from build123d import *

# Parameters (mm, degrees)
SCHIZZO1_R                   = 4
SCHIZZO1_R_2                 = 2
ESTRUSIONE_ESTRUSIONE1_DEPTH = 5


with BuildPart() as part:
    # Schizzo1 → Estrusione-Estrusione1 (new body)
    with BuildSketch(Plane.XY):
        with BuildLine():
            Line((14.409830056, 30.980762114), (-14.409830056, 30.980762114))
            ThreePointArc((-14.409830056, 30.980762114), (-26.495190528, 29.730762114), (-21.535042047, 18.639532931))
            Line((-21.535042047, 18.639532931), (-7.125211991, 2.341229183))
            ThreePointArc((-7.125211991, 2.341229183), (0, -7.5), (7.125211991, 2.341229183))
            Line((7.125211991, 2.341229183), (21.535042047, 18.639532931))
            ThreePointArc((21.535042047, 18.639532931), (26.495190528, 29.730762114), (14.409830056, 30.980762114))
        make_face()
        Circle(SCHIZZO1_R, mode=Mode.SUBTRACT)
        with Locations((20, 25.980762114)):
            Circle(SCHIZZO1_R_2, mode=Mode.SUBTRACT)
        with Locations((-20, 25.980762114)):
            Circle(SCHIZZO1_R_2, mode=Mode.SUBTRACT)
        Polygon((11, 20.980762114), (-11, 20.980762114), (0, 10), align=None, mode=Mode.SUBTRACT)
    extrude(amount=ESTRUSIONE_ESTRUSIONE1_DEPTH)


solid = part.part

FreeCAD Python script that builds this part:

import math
import FreeCAD as App
import Part
import Sketcher

V = App.Vector


def add_polygon(sketch, points):
    """Adds a closed chain of lines whose ends are joined by coincident constraints."""
    first, n = sketch.GeometryCount, len(points)
    for a, b in zip(points, points[1:] + points[:1]):
        sketch.addGeometry(Part.LineSegment(App.Vector(*a, 0), App.Vector(*b, 0)), False)
    for i in range(n):
        sketch.addConstraint(Sketcher.Constraint("Coincident", first + i, 2, first + (i + 1) % n, 1))

doc = App.newDocument("Part")
body = doc.addObject("PartDesign::Body", "Body")

# Sketch on XY plane
sketch1 = body.newObject("Sketcher::SketchObject", "Sketch")
sketch1.AttachmentSupport = (doc.getObject("XY_Plane"), [""])
sketch1.MapMode = "FlatFace"
sketch1.addGeometry(Part.LineSegment(V(14.40983, 30.980762, 0), V(-14.40983, 30.980762, 0)), False)  # 0
sketch1.addGeometry(Part.ArcOfCircle(Part.Circle(V(-20, 25.980762, 0), V(0, 0, 1), 7.5), math.radians(41.810315), math.radians(258.189685)), False)  # 1
sketch1.addGeometry(Part.LineSegment(V(-21.535042, 18.639533, 0), V(-7.125212, 2.341229, 0)), False)  # 2
sketch1.addGeometry(Part.ArcOfCircle(Part.Circle(V(0, 0, 0), V(0, 0, 1), 7.5), math.radians(161.810315), math.radians(378.189685)), False)  # 3
sketch1.addGeometry(Part.LineSegment(V(7.125212, 2.341229, 0), V(21.535042, 18.639533, 0)), False)  # 4
sketch1.addGeometry(Part.ArcOfCircle(Part.Circle(V(20, 25.980762, 0), V(0, 0, 1), 7.5), math.radians(-78.189685), math.radians(138.189685)), False)  # 5
sketch1.addGeometry(Part.Circle(V(0, 0, 0), V(0, 0, 1), 4), False)  # 6
sketch1.addGeometry(Part.Circle(V(-20, 25.980762, 0), V(0, 0, 1), 2), False)  # 7
add_polygon(sketch1, [(-11, 20.980762), (11, 20.980762), (0, 10)])  # lines 8-10
sketch1.addGeometry(Part.Circle(V(20, 25.980762, 0), V(0, 0, 1), 2), False)  # 11
sketch1.addConstraint([
    Sketcher.Constraint("Coincident", 0, 2, 1, 1),
    Sketcher.Constraint("Coincident", 1, 2, 2, 1),
    Sketcher.Constraint("Coincident", 2, 2, 3, 1),
    Sketcher.Constraint("Coincident", 3, 2, 4, 1),
    Sketcher.Constraint("Coincident", 4, 2, 5, 1),
    Sketcher.Constraint("Coincident", 5, 2, 0, 1),
    Sketcher.Constraint("Horizontal", 0),
    Sketcher.Constraint("Horizontal", 8),
    Sketcher.Constraint("Coincident", 3, 3, -1, 1),
    Sketcher.Constraint("Coincident", 6, 3, -1, 1),
    Sketcher.Constraint("Coincident", 7, 3, 1, 3),
    Sketcher.Constraint("Coincident", 11, 3, 5, 3),
    Sketcher.Constraint("Equal", 1, 3),
    Sketcher.Constraint("Equal", 3, 5),
    Sketcher.Constraint("Equal", 7, 11),
    Sketcher.Constraint("Symmetric", 1, 3, 5, 3, -2),
    Sketcher.Constraint("PointOnObject", 9, 2, -2),
    Sketcher.Constraint("Horizontal", 2, 2, 3, 2),
    Sketcher.Constraint("Horizontal", 1, 2, 4, 2),
    Sketcher.Constraint("Equal", 9, 10),
    Sketcher.Constraint("Diameter", 6, 8.0),
    Sketcher.Constraint("Diameter", 7, 4.0),
    Sketcher.Constraint("Radius", 1, 7.5),
    Sketcher.Constraint("DistanceX", 8, 1, 8, 2, 22.0),
    Sketcher.Constraint("DistanceX", 1, 3, -1, 1, 20.0),
    Sketcher.Constraint("DistanceY", -1, 1, 9, 2, 10.0),
    Sketcher.Constraint("DistanceY", 1, 3, 0, 2, 5.0),
    Sketcher.Constraint("DistanceY", 8, 2, 5, 3, 5.0),
    Sketcher.Constraint("Distance", 2, 21.754951),
    Sketcher.Constraint("Distance", 9, 15.542752),
    Sketcher.Constraint("DistanceX", 2, 2, -1, 1, 7.125212),
])
pad1 = body.newObject("PartDesign::Pad", "Pad")
pad1.Profile = sketch1
pad1.Length = 5

doc.recompute()
